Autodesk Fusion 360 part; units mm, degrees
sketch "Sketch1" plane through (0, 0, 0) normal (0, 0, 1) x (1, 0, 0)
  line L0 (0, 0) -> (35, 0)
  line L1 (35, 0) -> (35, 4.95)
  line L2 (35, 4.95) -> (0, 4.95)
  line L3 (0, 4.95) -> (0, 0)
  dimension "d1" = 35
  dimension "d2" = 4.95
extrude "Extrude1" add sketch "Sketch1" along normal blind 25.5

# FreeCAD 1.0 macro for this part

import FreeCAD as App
import Part
import Sketcher

doc = App.newDocument("Part")
body = doc.addObject("PartDesign::Body", "Body")

# Sketch on XY plane
sketch1 = body.newObject("Sketcher::SketchObject", "Sketch")
sketch1.AttachmentSupport = (doc.getObject("XY_Plane"), [""])
sketch1.MapMode = "FlatFace"
sketch1.addGeometry([
    Part.LineSegment(App.Vector(0, 5, 0), App.Vector(0, 0, 0)),
    Part.LineSegment(App.Vector(0, 0, 0), App.Vector(35, 0, 0)),
    Part.LineSegment(App.Vector(35, 0, 0), App.Vector(35, 5, 0)),
    Part.LineSegment(App.Vector(35, 5, 0), App.Vector(0, 5, 0)),
], False)
sketch1.addConstraint([
    Sketcher.Constraint("Coincident", 0, 2, 1, 1),
    Sketcher.Constraint("Coincident", 1, 2, 2, 1),
    Sketcher.Constraint("Coincident", 2, 2, 3, 1),
    Sketcher.Constraint("Coincident", 3, 2, 0, 1),
    Sketcher.Constraint("Vertical", 0),
    Sketcher.Constraint("Horizontal", 1),
    Sketcher.Constraint("Vertical", 2),
    Sketcher.Constraint("Horizontal", 3),
    Sketcher.Constraint("Coincident", 0, 2, -1, 1),
    Sketcher.Constraint("DistanceX", 1, 1, 1, 2, 35.0),
    Sketcher.Constraint("DistanceY", 0, 2, 0, 1, 4.95),
])
pad1 = body.newObject("PartDesign::Pad", "Pad")
pad1.Profile = sketch1
pad1.Length = 25.5

doc.recompute()
